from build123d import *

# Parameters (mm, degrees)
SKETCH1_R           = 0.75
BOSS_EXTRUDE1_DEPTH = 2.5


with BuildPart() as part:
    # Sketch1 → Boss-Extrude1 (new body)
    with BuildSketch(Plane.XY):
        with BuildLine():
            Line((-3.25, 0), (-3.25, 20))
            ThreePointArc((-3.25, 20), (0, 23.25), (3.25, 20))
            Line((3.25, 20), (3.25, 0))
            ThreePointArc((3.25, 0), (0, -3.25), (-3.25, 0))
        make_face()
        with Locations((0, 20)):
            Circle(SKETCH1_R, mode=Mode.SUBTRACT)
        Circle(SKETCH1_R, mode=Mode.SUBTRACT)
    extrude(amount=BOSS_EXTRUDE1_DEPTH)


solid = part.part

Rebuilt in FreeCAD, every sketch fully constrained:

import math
import FreeCAD as App
import Part
import Sketcher
from FreeCAD import Vector

doc = App.newDocument("Part")
body = doc.addObject("PartDesign::Body", "Body")

# Sketch on XY plane
sketch1 = body.newObject("Sketcher::SketchObject", "Sketch")
sketch1.AttachmentSupport = (doc.getObject("XY_Plane"), [""])
sketch1.MapMode = "FlatFace"
sketch1.addGeometry([
    Part.LineSegment(Vector(-3.2, 20, 0), Vector(-3.2, 0, 0)),  # 0
    Part.ArcOfCircle(Part.Circle(Vector(0, 0, 0), Vector(0, 0, 1), 3.2), math.radians(180), math.radians(360)),  # 1
    Part.LineSegment(Vector(3.2, 0, 0), Vector(3.2, 20, 0)),  # 2
    Part.ArcOfCircle(Part.Circle(Vector(0, 20, 0), Vector(0, 0, 1), 3.2), math.radians(0), math.radians(180)),  # 3
    Part.Circle(Vector(0, 0, 0), Vector(0, 0, 1), 0.8),  # 4
    Part.Circle(Vector(0, 20, 0), Vector(0, 0, 1), 0.8),  # 5
], False)
sketch1.addConstraint([
    Sketcher.Constraint("Tangent", 0, 2, 1, 1),
    Sketcher.Constraint("Tangent", 1, 2, 2, 1),
    Sketcher.Constraint("Tangent", 2, 2, 3, 1),
    Sketcher.Constraint("Tangent", 3, 2, 0, 1),
    Sketcher.Constraint("Vertical", 0),
    Sketcher.Constraint("Vertical", 2),
    Sketcher.Constraint("Coincident", 1, 3, -1, 1),
    Sketcher.Constraint("Coincident", 4, 3, -1, 1),
    Sketcher.Constraint("Coincident", 5, 3, 3, 3),
    Sketcher.Constraint("Equal", 4, 5),
    Sketcher.Constraint("Diameter", 4, 1.5),
    Sketcher.Constraint("DistanceY", 0, 2, 0, 1, 20.0),
    Sketcher.Constraint("Radius", 1, 3.25),
])
pad1 = body.newObject("PartDesign::Pad", "Pad")
pad1.Profile = sketch1
pad1.Length = 2.5

doc.recompute()
